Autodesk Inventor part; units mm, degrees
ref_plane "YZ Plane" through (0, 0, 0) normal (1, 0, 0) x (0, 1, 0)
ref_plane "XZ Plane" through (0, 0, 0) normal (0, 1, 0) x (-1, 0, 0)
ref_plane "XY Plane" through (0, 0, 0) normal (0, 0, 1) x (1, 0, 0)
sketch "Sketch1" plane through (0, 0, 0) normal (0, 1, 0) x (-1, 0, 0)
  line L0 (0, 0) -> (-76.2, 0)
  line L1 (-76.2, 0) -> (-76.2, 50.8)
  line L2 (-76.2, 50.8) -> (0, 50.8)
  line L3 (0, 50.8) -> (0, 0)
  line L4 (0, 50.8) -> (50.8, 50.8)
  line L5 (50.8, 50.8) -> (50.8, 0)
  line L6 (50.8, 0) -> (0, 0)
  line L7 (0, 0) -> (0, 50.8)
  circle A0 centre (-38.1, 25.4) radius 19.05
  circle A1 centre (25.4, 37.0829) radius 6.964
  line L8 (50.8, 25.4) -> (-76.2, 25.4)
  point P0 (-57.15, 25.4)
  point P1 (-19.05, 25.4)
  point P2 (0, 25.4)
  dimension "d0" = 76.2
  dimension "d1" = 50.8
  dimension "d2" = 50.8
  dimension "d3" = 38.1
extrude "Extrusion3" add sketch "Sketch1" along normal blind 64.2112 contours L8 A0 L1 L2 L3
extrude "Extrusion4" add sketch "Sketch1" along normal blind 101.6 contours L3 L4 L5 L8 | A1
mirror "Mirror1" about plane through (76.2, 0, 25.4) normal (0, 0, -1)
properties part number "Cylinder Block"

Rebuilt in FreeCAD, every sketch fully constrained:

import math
import FreeCAD as App
import Part
import Sketcher
Q = App.Units.Quantity


def add_polygon(sketch, points):
    """Adds a closed chain of lines whose ends are joined by coincident constraints."""
    first, n = sketch.GeometryCount, len(points)
    for a, b in zip(points, points[1:] + points[:1]):
        sketch.addGeometry(Part.LineSegment(App.Vector(*a, 0), App.Vector(*b, 0)), False)
    for i in range(n):
        sketch.addConstraint(Sketcher.Constraint("Coincident", first + i, 2, first + (i + 1) % n, 1))

doc = App.newDocument("Part")
body = doc.addObject("PartDesign::Body", "Body")

sketch1 = body.newObject("Sketcher::SketchObject", "Sketch")
sketch1.AttachmentSupport = (doc.getObject("XZ_Plane"), [""])
sketch1.MapMode = "FlatFace"
sketch1.addGeometry([
    Part.LineSegment(App.Vector(19, 25, 0), App.Vector(0, 25, 0)),
    Part.LineSegment(App.Vector(0, 25, 0), App.Vector(0, 51, 0)),
    Part.LineSegment(App.Vector(0, 51, 0), App.Vector(76, 51, 0)),
    Part.LineSegment(App.Vector(76, 51, 0), App.Vector(76, 25, 0)),
    Part.LineSegment(App.Vector(76, 25, 0), App.Vector(57, 25, 0)),
    Part.ArcOfCircle(Part.Circle(App.Vector(38, 25, 0), App.Vector(0, 0, 1), 19), math.radians(0), math.radians(180)),
], False)
sketch1.addConstraint([
    Sketcher.Constraint("Coincident", 0, 2, 1, 1),
    Sketcher.Constraint("Coincident", 1, 2, 2, 1),
    Sketcher.Constraint("Coincident", 2, 2, 3, 1),
    Sketcher.Constraint("Coincident", 3, 2, 4, 1),
    Sketcher.Constraint("Coincident", 4, 2, 5, 1),
    Sketcher.Constraint("Coincident", 5, 2, 0, 1),
    Sketcher.Constraint("Horizontal", 0),
    Sketcher.Constraint("Vertical", 1),
    Sketcher.Constraint("Horizontal", 2),
    Sketcher.Constraint("Vertical", 3),
    Sketcher.Constraint("Horizontal", 4),
    Sketcher.Constraint("PointOnObject", 0, 2, -2),
    Sketcher.Constraint("Horizontal", 5, 3, 0, 2),
    Sketcher.Constraint("Horizontal", 0, 2, 3, 2),
    Sketcher.Constraint("Equal", 0, 4),
    Sketcher.Constraint("DistanceX", 2, 1, 2, 2, Q("3 in")),
    Sketcher.Constraint("Radius", 5, Q("0.75 in")),
    Sketcher.Constraint("DistanceY", -1, 1, 1, 2, Q("2 in")),
    Sketcher.Constraint("DistanceY", 1, 1, 1, 2, Q("1 in")),
])
pad1 = body.newObject("PartDesign::Pad", "Pad")
pad1.Profile = sketch1
pad1.Length = Q("2.528 in")
pad1.Reversed = True

sketch2 = body.newObject("Sketcher::SketchObject", "Sketch001")
sketch2.AttachmentSupport = (doc.getObject("XZ_Plane"), [""])
sketch2.MapMode = "FlatFace"
add_polygon(sketch2, [(0, 51), (0, 25), (-51, 25), (-51, 51)])
sketch2.addConstraint([
    Sketcher.Constraint("Vertical", 0),
    Sketcher.Constraint("Horizontal", 1),
    Sketcher.Constraint("Vertical", 2),
    Sketcher.Constraint("Horizontal", 3),
    Sketcher.Constraint("PointOnObject", 0, 2, -2),
    Sketcher.Constraint("DistanceX", 1, 2, 1, 1, Q("2 in")),
    Sketcher.Constraint("DistanceY", -1, 1, 2, 2, Q("2 in")),
    Sketcher.Constraint("DistanceY", 0, 2, 0, 1, Q("1 in")),
])
pad2 = body.newObject("PartDesign::Pad", "Pad001")
pad2.Profile = sketch2
pad2.Length = Q("4 in")
pad2.Reversed = True
doc.recompute()

datumplane = body.newObject("PartDesign::Plane", "DatumPlane")
datumplane.AttachmentSupport = (doc.getObject("XY_Plane"), [""])
datumplane.MapMode = "FlatFace"
datumplane.AttachmentOffset = App.Placement(App.Vector(0, 0, 1 * 25.4), App.Rotation())
mirrored = body.newObject("PartDesign::Mirrored", "Mirrored")
mirrored.TransformMode = "Transform body"
mirrored.MirrorPlane = (datumplane, [""])
body.Tip = mirrored

doc.recompute()
